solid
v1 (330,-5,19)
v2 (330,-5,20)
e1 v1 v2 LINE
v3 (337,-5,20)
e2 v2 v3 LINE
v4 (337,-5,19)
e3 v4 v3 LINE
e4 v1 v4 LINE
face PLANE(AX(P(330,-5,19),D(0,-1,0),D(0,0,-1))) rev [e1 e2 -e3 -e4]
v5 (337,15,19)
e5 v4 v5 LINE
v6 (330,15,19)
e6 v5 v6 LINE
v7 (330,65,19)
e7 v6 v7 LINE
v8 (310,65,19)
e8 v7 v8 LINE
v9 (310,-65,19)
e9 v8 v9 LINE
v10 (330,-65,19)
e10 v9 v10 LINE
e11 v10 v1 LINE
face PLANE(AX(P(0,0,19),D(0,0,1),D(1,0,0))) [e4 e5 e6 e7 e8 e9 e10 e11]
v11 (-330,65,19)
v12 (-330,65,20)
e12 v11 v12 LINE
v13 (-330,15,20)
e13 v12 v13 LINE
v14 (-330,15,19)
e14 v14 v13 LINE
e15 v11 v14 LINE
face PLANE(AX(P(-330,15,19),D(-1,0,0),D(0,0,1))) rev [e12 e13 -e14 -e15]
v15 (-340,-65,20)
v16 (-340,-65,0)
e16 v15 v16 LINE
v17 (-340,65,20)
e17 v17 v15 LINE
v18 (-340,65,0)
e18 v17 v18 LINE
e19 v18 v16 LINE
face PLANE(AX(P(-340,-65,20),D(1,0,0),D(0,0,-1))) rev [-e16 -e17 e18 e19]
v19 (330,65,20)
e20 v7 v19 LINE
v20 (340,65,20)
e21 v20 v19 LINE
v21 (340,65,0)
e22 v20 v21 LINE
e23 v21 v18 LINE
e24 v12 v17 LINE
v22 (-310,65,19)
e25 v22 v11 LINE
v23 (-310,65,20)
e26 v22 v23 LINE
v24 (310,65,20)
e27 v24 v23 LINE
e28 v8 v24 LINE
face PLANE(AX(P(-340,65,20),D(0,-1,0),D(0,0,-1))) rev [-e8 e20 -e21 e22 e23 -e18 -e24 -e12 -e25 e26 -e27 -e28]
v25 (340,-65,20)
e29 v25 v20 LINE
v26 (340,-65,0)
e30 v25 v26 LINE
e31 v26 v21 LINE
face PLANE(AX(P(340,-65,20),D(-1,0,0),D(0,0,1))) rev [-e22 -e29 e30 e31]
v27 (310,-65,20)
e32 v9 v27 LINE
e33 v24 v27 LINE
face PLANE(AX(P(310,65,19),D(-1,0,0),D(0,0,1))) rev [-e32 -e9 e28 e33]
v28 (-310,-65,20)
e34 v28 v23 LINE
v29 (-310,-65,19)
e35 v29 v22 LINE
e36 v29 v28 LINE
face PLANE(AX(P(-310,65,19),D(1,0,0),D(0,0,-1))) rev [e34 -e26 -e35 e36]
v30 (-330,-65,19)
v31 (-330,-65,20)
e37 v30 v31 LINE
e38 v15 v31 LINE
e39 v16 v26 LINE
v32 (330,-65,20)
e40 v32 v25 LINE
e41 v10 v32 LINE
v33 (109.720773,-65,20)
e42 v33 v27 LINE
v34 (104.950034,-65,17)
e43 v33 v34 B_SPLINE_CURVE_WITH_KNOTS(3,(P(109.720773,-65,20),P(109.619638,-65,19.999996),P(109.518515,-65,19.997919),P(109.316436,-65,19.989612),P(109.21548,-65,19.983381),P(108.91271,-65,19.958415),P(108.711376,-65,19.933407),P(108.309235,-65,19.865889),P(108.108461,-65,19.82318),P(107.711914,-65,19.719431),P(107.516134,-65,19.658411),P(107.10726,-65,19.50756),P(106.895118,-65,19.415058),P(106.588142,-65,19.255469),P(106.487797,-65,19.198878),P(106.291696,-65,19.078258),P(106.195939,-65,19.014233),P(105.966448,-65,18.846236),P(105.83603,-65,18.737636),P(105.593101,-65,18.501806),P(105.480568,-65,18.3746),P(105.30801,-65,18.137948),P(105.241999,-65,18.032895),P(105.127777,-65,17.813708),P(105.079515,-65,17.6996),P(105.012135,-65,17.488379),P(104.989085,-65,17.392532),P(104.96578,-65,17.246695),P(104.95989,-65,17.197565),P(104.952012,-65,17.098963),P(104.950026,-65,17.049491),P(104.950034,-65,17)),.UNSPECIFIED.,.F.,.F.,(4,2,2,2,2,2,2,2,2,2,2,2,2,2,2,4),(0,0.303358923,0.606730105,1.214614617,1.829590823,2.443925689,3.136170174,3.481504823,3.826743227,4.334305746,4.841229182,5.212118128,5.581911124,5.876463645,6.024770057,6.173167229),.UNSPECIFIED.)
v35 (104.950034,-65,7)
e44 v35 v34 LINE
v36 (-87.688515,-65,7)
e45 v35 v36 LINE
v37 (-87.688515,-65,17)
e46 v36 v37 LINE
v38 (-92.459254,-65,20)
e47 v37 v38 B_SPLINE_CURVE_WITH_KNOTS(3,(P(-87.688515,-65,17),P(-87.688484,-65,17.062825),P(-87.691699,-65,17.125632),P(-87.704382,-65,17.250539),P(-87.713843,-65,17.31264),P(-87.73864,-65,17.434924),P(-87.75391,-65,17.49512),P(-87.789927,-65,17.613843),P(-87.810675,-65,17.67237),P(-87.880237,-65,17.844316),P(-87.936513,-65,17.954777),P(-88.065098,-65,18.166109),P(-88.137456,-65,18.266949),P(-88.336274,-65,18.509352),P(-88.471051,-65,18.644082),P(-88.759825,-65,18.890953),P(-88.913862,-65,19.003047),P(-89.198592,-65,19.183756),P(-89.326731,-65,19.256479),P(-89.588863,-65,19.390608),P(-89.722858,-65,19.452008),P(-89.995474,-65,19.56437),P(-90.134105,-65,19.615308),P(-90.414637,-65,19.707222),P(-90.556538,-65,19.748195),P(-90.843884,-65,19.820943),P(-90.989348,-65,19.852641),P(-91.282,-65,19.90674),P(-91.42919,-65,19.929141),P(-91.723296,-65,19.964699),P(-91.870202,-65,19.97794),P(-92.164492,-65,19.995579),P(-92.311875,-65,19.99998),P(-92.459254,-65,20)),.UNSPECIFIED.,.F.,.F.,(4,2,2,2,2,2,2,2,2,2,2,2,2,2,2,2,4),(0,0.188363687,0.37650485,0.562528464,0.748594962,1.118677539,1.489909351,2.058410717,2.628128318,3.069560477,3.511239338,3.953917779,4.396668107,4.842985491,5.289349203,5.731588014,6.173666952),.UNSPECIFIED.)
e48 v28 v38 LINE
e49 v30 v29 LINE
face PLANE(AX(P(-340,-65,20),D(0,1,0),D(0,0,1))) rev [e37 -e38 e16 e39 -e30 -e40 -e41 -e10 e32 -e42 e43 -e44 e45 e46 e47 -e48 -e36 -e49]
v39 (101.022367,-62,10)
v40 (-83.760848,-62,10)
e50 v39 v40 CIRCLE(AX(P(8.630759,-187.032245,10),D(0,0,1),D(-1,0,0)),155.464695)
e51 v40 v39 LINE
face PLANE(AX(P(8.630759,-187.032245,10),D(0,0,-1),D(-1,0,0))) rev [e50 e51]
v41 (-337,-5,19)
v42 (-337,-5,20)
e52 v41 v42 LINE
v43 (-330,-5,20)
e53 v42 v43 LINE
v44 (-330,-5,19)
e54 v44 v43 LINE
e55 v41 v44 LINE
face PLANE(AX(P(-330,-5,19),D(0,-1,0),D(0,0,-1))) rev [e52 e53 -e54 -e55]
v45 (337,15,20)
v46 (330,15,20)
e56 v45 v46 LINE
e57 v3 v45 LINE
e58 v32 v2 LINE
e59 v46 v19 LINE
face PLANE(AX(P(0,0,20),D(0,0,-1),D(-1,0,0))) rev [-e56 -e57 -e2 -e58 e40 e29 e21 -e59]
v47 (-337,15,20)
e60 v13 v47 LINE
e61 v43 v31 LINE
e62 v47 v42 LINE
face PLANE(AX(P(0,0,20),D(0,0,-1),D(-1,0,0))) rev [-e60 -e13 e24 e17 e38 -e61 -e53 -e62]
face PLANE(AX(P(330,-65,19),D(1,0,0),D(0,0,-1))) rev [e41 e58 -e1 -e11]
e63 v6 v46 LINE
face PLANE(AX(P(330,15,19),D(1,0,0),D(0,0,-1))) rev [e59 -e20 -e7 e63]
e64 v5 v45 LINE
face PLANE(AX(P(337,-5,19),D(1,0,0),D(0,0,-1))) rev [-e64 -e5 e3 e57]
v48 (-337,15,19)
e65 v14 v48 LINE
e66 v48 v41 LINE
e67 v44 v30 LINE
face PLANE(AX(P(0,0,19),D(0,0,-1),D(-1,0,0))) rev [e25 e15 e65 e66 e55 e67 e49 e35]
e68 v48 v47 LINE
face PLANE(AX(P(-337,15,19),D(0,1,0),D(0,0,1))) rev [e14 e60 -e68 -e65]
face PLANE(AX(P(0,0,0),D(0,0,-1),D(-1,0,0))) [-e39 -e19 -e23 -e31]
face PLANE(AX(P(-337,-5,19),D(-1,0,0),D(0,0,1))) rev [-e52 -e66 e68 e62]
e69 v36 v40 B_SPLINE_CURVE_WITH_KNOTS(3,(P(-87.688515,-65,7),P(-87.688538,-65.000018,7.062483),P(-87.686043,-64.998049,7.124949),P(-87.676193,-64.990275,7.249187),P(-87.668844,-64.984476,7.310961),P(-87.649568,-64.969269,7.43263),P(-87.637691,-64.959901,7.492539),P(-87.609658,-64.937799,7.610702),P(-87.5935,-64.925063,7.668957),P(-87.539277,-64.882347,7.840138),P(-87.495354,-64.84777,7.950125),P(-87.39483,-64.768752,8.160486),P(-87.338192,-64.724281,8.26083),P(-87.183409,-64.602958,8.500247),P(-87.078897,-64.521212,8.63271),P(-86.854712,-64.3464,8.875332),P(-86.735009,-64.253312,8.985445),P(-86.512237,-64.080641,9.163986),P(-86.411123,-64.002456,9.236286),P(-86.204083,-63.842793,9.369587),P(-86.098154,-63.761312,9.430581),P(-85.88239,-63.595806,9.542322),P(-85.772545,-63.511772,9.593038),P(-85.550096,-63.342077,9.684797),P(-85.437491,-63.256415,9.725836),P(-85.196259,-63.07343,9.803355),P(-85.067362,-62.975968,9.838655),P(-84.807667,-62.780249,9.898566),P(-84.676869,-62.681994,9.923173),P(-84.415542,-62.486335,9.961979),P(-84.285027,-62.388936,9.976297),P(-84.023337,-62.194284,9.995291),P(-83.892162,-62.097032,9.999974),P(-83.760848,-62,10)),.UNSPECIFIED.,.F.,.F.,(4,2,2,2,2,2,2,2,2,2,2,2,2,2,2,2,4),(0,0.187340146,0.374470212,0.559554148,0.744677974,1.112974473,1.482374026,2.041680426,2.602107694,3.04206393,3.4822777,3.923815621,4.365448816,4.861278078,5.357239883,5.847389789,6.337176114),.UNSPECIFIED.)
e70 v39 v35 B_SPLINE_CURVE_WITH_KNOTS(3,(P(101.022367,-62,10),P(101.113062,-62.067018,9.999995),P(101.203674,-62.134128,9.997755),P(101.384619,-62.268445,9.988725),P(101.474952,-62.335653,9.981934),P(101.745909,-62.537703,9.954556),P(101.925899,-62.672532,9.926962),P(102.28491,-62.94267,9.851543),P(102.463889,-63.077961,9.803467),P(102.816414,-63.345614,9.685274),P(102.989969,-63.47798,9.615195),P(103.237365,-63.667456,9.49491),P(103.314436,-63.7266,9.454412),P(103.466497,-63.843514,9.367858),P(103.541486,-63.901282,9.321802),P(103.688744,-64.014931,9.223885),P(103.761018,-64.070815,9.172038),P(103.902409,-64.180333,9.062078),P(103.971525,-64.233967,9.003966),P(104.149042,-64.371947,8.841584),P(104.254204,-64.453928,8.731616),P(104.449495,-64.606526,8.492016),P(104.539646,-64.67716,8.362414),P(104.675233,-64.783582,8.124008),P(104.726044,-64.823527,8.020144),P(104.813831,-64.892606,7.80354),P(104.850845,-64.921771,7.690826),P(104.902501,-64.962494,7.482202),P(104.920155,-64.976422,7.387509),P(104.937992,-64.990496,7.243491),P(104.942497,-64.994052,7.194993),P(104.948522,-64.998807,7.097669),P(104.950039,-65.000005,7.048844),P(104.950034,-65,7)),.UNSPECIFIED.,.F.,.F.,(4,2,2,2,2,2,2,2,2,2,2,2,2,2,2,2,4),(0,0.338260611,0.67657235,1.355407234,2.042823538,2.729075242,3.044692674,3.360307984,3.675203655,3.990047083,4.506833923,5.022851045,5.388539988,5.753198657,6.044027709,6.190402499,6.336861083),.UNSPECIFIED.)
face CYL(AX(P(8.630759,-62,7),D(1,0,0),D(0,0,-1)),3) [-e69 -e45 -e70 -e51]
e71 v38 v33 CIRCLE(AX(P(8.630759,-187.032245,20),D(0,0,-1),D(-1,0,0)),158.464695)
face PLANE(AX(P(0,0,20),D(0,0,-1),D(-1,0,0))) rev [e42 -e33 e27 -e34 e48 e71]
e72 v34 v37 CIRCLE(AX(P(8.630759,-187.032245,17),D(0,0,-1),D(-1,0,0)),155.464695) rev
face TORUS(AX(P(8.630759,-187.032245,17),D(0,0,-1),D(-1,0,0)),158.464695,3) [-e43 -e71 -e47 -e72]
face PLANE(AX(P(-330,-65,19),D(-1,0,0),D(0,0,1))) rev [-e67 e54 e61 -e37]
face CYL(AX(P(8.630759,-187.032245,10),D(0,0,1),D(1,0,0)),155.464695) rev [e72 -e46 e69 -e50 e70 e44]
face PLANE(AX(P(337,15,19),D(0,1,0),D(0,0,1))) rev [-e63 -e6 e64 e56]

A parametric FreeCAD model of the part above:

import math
import FreeCAD as App
import Part
import Sketcher

V = App.Vector


def edges_at(feature, points):
    """Names of the edges that pass closest to the given points."""
    edges = feature.Shape.Edges
    near = lambda p: min(range(len(edges)), key=lambda i: edges[i].distToShape(Part.Vertex(*p))[0])
    return sorted({f"Edge{near(p) + 1}" for p in points})


def add_polygon(sketch, points):
    """Adds a closed chain of lines whose ends are joined by coincident constraints."""
    first, n = sketch.GeometryCount, len(points)
    for a, b in zip(points, points[1:] + points[:1]):
        sketch.addGeometry(Part.LineSegment(App.Vector(*a, 0), App.Vector(*b, 0)), False)
    for i in range(n):
        sketch.addConstraint(Sketcher.Constraint("Coincident", first + i, 2, first + (i + 1) % n, 1))

doc = App.newDocument("Part")
body = doc.addObject("PartDesign::Body", "Body")

# Sketch on XY plane
sketch1 = body.newObject("Sketcher::SketchObject", "Sketch")
sketch1.AttachmentSupport = (doc.getObject("XY_Plane"), [""])
sketch1.MapMode = "FlatFace"
add_polygon(sketch1, [(-340, 65), (-340, -65), (340, -65), (340, 65)])  # lines 0-3
sketch1.addConstraint([
    Sketcher.Constraint("Vertical", 0),
    Sketcher.Constraint("Horizontal", 1),
    Sketcher.Constraint("Vertical", 2),
    Sketcher.Constraint("Horizontal", 3),
    Sketcher.Constraint("Symmetric", 0, 2, 2, 2, -1, 1),
    Sketcher.Constraint("DistanceX", 1, 1, 1, 2, 680.0),
    Sketcher.Constraint("DistanceY", 0, 2, 0, 1, 130.0),
])
pad1 = body.newObject("PartDesign::Pad", "Pad")
pad1.Profile = sketch1
pad1.Length = 20

# Sketch on XY plane
sketch2 = body.newObject("Sketcher::SketchObject", "Sketch001")
sketch2.AttachmentSupport = (doc.getObject("XY_Plane"), [""])
sketch2.MapMode = "FlatFace"
sketch2.AttachmentOffset = App.Placement(V(0, 0, 20), App.Rotation())
sketch2.addGeometry([
    Part.LineSegment(V(-88, -65, 0), V(105, -65, 0)),
    Part.ArcOfCircle(Part.Circle(V(9, -187, 0), V(0, 0, 1), 155), math.radians(52), math.radians(128)),
], False)
sketch2.addConstraint([
    Sketcher.Constraint("Coincident", 0, 1, 1, 2),
    Sketcher.Constraint("Coincident", 1, 1, 0, 2),
    Sketcher.Constraint("Horizontal", 0),
    Sketcher.Constraint("DistanceY", 0, 1, -1, 1, 65.0),
    Sketcher.Constraint("Radius", 1, 155.464695),
    Sketcher.Constraint("DistanceX", 0, 1, 0, 2, 192.638549),
    Sketcher.Constraint("DistanceX", -1, 1, 1, 3, 8.630759),
])
pocket1 = body.newObject("PartDesign::Pocket", "Pocket")
pocket1.Profile = sketch2
pocket1.Length = 10
doc.recompute()

fillet = body.newObject("PartDesign::Fillet", "Fillet")
fillet.Base = (pocket1, edges_at(pocket1, [(8.631, -31.568, 20)]))
fillet.Radius = 3
doc.recompute()

fillet2 = body.newObject("PartDesign::Fillet", "Fillet001")
fillet2.Base = (fillet, edges_at(fillet, [(8.631, -65, 10)]))
fillet2.Radius = 3

# Sketch on XY plane
sketch3 = body.newObject("Sketcher::SketchObject", "Sketch002")
sketch3.AttachmentSupport = (doc.getObject("XY_Plane"), [""])
sketch3.MapMode = "FlatFace"
sketch3.AttachmentOffset = App.Placement(V(0, 0, 20), App.Rotation())
add_polygon(sketch3, [(310, 65), (310, -65), (330, -65), (330, -5), (337, -5), (337, 15), (330, 15), (330, 65)])  # lines 0-7
sketch3.addConstraint([
    Sketcher.Constraint("Vertical", 0),
    Sketcher.Constraint("Horizontal", 1),
    Sketcher.Constraint("Vertical", 2),
    Sketcher.Constraint("Horizontal", 3),
    Sketcher.Constraint("Vertical", 4),
    Sketcher.Constraint("Horizontal", 5),
    Sketcher.Constraint("Vertical", 6),
    Sketcher.Constraint("Horizontal", 7),
    Sketcher.Constraint("Symmetric", 1, 2, 6, 2, -1),
    Sketcher.Constraint("Equal", 7, 4),
    Sketcher.Constraint("DistanceX", 1, 1, 1, 2, 20.0),
    Sketcher.Constraint("DistanceX", 3, 1, 3, 2, 7.0),
    Sketcher.Constraint("DistanceY", 0, 2, 0, 1, 130.0),
    Sketcher.Constraint("DistanceY", 2, 1, 2, 2, 60.0),
    Sketcher.Constraint("DistanceX", -1, 1, 0, 2, 310.0),
])
pocket2 = body.newObject("PartDesign::Pocket", "Pocket001")
pocket2.Profile = sketch3
pocket2.Length = 1

# Sketch on XY plane
sketch4 = body.newObject("Sketcher::SketchObject", "Sketch003")
sketch4.AttachmentSupport = (doc.getObject("XY_Plane"), [""])
sketch4.MapMode = "FlatFace"
sketch4.AttachmentOffset = App.Placement(V(0, 0, 20), App.Rotation())
add_polygon(sketch4, [(-310, -65), (-310, 65), (-330, 65), (-330, 15), (-337, 15), (-337, -5), (-330, -5), (-330, -65)])  # lines 0-7
sketch4.addConstraint([
    Sketcher.Constraint("Vertical", 0),
    Sketcher.Constraint("Horizontal", 1),
    Sketcher.Constraint("Vertical", 2),
    Sketcher.Constraint("Horizontal", 3),
    Sketcher.Constraint("Vertical", 4),
    Sketcher.Constraint("Horizontal", 5),
    Sketcher.Constraint("Vertical", 6),
    Sketcher.Constraint("Horizontal", 7),
    Sketcher.Constraint("Symmetric", 1, 2, 6, 2, -1),
    Sketcher.Constraint("Equal", 7, 4),
    Sketcher.Constraint("DistanceX", 1, 2, 1, 1, 20.0),
    Sketcher.Constraint("DistanceX", 3, 2, 3, 1, 7.0),
    Sketcher.Constraint("DistanceY", 0, 1, 0, 2, 130.0),
    Sketcher.Constraint("DistanceY", 2, 2, 2, 1, 50.0),
    Sketcher.Constraint("DistanceX", 0, 2, -1, 1, 310.0),
])
pocket3 = body.newObject("PartDesign::Pocket", "Pocket002")
pocket3.Profile = sketch4
pocket3.Length = 1

doc.recompute()
